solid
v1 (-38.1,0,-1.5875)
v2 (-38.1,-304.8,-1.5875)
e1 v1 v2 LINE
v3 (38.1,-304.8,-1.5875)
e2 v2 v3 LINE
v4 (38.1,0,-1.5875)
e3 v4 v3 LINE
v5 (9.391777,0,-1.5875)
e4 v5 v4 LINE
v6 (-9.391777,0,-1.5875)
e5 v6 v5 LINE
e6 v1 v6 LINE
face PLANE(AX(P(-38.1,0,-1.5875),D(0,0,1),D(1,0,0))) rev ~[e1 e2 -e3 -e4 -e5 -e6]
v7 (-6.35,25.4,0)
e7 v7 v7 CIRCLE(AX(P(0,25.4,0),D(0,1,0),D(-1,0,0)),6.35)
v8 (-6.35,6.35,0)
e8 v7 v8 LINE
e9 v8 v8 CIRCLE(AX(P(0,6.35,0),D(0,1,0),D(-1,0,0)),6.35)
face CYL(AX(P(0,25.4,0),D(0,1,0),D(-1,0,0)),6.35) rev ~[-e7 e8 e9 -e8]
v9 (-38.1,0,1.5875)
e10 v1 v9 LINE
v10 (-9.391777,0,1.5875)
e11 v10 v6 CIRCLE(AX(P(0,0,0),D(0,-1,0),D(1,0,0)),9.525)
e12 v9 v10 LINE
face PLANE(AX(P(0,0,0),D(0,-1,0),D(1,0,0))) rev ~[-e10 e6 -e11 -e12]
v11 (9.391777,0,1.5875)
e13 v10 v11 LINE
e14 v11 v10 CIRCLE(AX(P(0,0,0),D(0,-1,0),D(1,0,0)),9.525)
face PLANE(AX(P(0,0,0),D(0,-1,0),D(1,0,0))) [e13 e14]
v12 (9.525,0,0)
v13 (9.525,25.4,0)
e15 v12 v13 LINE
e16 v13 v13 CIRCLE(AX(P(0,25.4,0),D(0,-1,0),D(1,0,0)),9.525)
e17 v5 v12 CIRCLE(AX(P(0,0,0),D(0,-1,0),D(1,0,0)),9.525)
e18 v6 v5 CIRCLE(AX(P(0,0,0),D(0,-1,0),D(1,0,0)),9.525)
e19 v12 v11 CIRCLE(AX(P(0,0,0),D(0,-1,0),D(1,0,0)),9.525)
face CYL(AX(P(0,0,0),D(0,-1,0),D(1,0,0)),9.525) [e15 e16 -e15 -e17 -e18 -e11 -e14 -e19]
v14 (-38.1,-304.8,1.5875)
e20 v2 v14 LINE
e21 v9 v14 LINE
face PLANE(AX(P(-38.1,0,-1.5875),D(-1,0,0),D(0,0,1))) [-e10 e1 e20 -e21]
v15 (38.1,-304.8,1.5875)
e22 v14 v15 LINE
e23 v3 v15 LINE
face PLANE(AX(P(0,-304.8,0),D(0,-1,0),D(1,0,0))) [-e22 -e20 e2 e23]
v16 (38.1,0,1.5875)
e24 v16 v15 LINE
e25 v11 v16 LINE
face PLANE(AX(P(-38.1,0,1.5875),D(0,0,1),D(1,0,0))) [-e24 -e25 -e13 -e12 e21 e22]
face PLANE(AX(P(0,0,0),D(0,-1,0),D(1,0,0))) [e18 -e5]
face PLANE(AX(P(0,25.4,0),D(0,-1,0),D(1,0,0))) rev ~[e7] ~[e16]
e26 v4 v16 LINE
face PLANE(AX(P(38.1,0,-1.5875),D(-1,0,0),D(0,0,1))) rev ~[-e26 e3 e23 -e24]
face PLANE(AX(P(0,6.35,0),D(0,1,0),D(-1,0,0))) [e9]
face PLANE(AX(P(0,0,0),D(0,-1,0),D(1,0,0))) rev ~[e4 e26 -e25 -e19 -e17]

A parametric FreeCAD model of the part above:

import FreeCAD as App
import Part
import Sketcher
Q = App.Units.Quantity


def add_polygon(sketch, points):
    """Adds a closed chain of lines whose ends are joined by coincident constraints."""
    first, n = sketch.GeometryCount, len(points)
    for a, b in zip(points, points[1:] + points[:1]):
        sketch.addGeometry(Part.LineSegment(App.Vector(*a, 0), App.Vector(*b, 0)), False)
    for i in range(n):
        sketch.addConstraint(Sketcher.Constraint("Coincident", first + i, 2, first + (i + 1) % n, 1))

doc = App.newDocument("Part")
body = doc.addObject("PartDesign::Body", "Body")

# Sketch on XZ plane
sketch1 = body.newObject("Sketcher::SketchObject", "Sketch")
sketch1.AttachmentSupport = (doc.getObject("XZ_Plane"), [""])
sketch1.MapMode = "FlatFace"
sketch1.addGeometry(Part.Circle(App.Vector(0, 0, 0), App.Vector(0, 0, 1), 10), False)
sketch1.addConstraint([
    Sketcher.Constraint("Coincident", 0, 3, -1, 1),
    Sketcher.Constraint("Diameter", 0, Q("0.75 in")),
])
pad1 = body.newObject("PartDesign::Pad", "Pad")
pad1.Profile = sketch1
pad1.Length = Q("1 in")
pad1.Reversed = True

# Sketch on XZ plane
sketch2 = body.newObject("Sketcher::SketchObject", "Sketch001")
sketch2.AttachmentSupport = (doc.getObject("XZ_Plane"), [""])
sketch2.MapMode = "FlatFace"
sketch2.AttachmentOffset = App.Placement(App.Vector(0, 0, -1 * 25.4), App.Rotation())
sketch2.addGeometry(Part.Circle(App.Vector(0, 0, 0), App.Vector(0, 0, 1), 6), False)
sketch2.addConstraint([
    Sketcher.Constraint("Coincident", 0, 3, -1, 1),
    Sketcher.Constraint("Diameter", 0, Q("0.5 in")),
])
pocket1 = body.newObject("PartDesign::Pocket", "Pocket")
pocket1.Profile = sketch2
pocket1.Length = Q("0.75 in")
pocket1.Reversed = True

# Sketch on XZ plane
sketch3 = body.newObject("Sketcher::SketchObject", "Sketch002")
sketch3.AttachmentSupport = (doc.getObject("XZ_Plane"), [""])
sketch3.MapMode = "FlatFace"
add_polygon(sketch3, [(-38.1, 1.6), (-38.1, -1.6), (38.1, -1.6), (38.1, 1.6)])  # lines 0-3
sketch3.addConstraint([
    Sketcher.Constraint("Vertical", 0),
    Sketcher.Constraint("Horizontal", 1),
    Sketcher.Constraint("Vertical", 2),
    Sketcher.Constraint("Horizontal", 3),
    Sketcher.Constraint("Symmetric", 0, 2, 2, 2, -1, 1),
    Sketcher.Constraint("DistanceX", 1, 1, 1, 2, Q("3 in")),
    Sketcher.Constraint("DistanceY", 0, 2, 0, 1, Q("0.125 in")),
])
pad2 = body.newObject("PartDesign::Pad", "Pad001")
pad2.Profile = sketch3
pad2.Length = Q("12 in")

doc.recompute()
